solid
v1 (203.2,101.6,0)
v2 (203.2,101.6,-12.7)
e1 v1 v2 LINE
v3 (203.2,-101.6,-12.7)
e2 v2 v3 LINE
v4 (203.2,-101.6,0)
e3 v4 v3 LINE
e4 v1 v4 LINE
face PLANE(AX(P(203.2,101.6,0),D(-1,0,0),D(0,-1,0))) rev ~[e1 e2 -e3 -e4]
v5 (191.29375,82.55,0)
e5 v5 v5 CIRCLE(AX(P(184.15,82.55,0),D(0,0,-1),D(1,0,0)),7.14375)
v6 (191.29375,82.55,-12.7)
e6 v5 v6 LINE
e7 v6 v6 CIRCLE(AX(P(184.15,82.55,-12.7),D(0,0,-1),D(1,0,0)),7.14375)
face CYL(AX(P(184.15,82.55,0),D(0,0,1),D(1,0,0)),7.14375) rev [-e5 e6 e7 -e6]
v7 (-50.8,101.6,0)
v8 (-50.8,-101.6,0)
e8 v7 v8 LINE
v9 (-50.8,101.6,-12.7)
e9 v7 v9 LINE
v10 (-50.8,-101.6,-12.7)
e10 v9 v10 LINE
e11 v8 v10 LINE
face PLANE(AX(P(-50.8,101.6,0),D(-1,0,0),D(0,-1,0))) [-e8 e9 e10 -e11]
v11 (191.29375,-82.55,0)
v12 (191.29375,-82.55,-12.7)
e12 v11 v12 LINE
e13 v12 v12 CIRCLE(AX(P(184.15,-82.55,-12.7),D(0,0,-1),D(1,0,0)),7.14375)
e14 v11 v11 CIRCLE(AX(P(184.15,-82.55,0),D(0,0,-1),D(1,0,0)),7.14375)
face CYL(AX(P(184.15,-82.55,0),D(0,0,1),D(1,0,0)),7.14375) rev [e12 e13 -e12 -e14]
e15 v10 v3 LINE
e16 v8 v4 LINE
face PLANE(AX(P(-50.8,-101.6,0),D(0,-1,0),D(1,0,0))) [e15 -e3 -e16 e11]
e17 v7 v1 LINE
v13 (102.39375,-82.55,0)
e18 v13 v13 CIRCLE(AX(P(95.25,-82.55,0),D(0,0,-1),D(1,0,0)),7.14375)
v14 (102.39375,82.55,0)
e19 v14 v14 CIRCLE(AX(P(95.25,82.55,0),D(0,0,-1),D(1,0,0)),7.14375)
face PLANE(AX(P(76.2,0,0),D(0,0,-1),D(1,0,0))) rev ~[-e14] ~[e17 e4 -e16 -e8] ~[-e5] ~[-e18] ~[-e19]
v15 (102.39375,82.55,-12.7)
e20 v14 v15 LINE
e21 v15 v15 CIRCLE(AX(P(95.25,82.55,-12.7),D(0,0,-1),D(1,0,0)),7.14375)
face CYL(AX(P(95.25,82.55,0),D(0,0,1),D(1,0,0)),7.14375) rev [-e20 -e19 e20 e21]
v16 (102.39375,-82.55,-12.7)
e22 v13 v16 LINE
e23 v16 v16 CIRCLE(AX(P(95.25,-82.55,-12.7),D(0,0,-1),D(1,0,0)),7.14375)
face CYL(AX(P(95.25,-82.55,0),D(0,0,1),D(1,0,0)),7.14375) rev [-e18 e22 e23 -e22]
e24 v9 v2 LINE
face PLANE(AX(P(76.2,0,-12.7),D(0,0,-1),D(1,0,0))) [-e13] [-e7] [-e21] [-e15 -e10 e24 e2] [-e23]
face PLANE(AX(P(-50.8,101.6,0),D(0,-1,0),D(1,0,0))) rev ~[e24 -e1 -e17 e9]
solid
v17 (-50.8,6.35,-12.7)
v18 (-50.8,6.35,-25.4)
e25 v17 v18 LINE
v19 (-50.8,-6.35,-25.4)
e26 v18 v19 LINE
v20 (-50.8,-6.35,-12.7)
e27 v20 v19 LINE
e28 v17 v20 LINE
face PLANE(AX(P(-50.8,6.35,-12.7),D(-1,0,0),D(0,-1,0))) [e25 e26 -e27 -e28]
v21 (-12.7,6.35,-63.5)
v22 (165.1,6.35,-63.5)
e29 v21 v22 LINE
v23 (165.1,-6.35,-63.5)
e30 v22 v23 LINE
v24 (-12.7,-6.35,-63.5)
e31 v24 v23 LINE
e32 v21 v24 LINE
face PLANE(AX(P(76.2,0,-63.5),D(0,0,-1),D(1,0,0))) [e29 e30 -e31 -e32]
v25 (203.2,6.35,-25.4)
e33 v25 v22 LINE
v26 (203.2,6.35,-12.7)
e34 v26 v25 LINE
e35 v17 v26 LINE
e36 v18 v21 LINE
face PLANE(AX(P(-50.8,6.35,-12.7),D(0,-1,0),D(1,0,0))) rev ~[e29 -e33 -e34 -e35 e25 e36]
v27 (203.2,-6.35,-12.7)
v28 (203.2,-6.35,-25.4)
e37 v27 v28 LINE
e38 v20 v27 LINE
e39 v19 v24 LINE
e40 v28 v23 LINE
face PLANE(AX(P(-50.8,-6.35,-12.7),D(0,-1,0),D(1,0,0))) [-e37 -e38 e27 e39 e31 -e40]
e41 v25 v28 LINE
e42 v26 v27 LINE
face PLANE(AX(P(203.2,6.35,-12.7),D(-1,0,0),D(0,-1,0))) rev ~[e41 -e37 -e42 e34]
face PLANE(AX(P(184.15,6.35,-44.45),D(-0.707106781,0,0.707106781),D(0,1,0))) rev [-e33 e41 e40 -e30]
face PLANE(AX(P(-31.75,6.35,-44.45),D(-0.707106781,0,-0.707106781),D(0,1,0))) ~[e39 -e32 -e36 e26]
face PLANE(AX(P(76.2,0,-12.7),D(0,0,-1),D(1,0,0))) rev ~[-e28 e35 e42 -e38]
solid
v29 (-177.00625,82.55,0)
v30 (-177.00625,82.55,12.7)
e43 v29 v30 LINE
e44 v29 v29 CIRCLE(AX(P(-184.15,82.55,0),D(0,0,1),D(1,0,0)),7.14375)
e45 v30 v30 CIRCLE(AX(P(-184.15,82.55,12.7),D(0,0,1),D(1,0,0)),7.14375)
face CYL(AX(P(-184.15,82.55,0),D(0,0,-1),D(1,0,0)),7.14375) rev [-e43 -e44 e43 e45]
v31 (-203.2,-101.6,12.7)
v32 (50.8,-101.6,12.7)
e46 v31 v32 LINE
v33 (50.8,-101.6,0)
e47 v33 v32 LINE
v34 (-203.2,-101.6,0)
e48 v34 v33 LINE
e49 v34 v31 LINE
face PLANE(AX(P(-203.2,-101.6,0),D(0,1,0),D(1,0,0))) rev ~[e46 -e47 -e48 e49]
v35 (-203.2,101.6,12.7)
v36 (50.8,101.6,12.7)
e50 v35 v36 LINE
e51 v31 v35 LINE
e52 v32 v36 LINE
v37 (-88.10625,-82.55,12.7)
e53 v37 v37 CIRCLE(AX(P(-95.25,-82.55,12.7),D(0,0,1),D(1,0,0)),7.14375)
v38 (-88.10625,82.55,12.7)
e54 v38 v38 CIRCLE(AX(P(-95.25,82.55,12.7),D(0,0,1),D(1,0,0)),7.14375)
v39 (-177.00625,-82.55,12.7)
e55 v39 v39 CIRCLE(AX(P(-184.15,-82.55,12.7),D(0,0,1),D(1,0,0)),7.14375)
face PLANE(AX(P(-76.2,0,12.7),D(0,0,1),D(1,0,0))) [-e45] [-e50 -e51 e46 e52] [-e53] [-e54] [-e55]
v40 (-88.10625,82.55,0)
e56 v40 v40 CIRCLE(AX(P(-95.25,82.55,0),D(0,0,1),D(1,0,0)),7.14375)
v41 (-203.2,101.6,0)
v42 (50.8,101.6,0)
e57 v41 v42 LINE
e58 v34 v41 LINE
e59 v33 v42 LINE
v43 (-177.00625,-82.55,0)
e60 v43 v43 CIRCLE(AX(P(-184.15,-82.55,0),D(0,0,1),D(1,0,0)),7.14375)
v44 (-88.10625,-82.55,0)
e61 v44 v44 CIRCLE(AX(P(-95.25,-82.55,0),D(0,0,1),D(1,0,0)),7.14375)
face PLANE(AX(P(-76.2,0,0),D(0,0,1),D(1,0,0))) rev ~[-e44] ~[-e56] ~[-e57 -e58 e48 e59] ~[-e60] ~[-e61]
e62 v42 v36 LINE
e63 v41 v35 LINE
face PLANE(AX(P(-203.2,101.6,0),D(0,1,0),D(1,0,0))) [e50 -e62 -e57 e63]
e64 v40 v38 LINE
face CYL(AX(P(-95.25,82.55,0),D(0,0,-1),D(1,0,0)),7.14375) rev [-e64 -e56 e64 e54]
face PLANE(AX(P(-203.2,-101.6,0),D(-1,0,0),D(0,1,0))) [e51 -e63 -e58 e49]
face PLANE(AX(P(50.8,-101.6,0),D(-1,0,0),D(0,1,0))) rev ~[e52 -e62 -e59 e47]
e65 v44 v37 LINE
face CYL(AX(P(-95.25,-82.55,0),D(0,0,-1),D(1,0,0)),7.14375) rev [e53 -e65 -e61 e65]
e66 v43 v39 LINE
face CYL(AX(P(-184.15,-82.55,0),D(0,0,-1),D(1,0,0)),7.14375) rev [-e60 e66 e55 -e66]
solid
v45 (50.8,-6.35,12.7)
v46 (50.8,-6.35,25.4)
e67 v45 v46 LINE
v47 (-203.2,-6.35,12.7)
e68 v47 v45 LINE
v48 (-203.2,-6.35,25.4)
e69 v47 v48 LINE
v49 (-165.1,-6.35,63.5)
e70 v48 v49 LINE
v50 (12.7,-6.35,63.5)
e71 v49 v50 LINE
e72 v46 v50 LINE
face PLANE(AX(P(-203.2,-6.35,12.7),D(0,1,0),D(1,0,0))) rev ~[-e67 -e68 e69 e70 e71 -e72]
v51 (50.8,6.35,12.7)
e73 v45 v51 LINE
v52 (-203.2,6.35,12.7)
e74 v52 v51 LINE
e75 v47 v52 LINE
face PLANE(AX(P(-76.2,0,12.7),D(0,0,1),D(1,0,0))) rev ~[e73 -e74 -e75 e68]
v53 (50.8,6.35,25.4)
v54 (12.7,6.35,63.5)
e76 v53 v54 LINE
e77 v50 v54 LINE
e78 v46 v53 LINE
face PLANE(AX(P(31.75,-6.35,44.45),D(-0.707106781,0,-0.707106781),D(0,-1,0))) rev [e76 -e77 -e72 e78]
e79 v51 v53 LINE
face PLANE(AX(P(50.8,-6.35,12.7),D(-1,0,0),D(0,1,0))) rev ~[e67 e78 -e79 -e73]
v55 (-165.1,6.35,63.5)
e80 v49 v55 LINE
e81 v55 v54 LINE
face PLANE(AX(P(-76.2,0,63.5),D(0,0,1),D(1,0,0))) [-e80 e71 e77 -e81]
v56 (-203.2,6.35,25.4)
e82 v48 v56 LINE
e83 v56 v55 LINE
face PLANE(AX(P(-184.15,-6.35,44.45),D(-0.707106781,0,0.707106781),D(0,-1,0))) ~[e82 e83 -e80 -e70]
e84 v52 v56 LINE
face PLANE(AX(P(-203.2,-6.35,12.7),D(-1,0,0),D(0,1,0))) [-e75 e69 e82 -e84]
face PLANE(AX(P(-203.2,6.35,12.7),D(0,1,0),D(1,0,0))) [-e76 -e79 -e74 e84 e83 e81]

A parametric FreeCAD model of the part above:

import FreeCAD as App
import Part
import Sketcher
Q = App.Units.Quantity


def edges_at(feature, points):
    """Names of the edges that pass closest to the given points."""
    edges = feature.Shape.Edges
    near = lambda p: min(range(len(edges)), key=lambda i: edges[i].distToShape(Part.Vertex(*p))[0])
    return sorted({f"Edge{near(p) + 1}" for p in points})


def add_polygon(sketch, points):
    """Adds a closed chain of lines whose ends are joined by coincident constraints."""
    first, n = sketch.GeometryCount, len(points)
    for a, b in zip(points, points[1:] + points[:1]):
        sketch.addGeometry(Part.LineSegment(App.Vector(*a, 0), App.Vector(*b, 0)), False)
    for i in range(n):
        sketch.addConstraint(Sketcher.Constraint("Coincident", first + i, 2, first + (i + 1) % n, 1))

doc = App.newDocument("Part")
body = doc.addObject("PartDesign::Body", "Body")

# Sketch on XY plane
sketch1 = doc.addObject("Sketcher::SketchObject", "Sketch")
body.addObject(sketch1)
sketch1.AttachmentSupport = (doc.XY_Plane, [""])
sketch1.MapMode = "FlatFace"
add_polygon(sketch1, [(-203, 102), (-203, -102), (51, -102), (51, 102)])  # lines 0-3
sketch1.addGeometry(Part.Circle(App.Vector(-184, -83, 0), App.Vector(0, 0, 1), 7), False)  # 4
sketch1.addGeometry(Part.Circle(App.Vector(-95, -83, 0), App.Vector(0, 0, 1), 7), False)  # 5
sketch1.addGeometry(Part.Circle(App.Vector(-184, 83, 0), App.Vector(0, 0, 1), 7), False)  # 6
sketch1.addGeometry(Part.Circle(App.Vector(-95, 83, 0), App.Vector(0, 0, 1), 7), False)  # 7
sketch1.addConstraint(Sketcher.Constraint("Vertical", 0))
sketch1.addConstraint(Sketcher.Constraint("Horizontal", 1))
sketch1.addConstraint(Sketcher.Constraint("Vertical", 2))
sketch1.addConstraint(Sketcher.Constraint("Horizontal", 3))
sketch1.addConstraint(Sketcher.Constraint("Equal", 4, 5))
sketch1.addConstraint(Sketcher.Constraint("Equal", 5, 6))
sketch1.addConstraint(Sketcher.Constraint("Equal", 6, 7))
sketch1.addConstraint(Sketcher.Constraint("Symmetric", 4, 3, 6, 3, -1))
sketch1.addConstraint(Sketcher.Constraint("Symmetric", 5, 3, 7, 3, -1))
sketch1.addConstraint(Sketcher.Constraint("Horizontal", 4, 3, 5, 3))
sketch1.addConstraint(Sketcher.Constraint("DistanceX", 1, 1, 1, 2, Q("10 in")))
sketch1.addConstraint(Sketcher.Constraint("DistanceY", 0, 2, 0, 1, Q("8 in")))
sketch1.addConstraint(Sketcher.Constraint("Diameter", 4, Q("0.5625 in")))
sketch1.addConstraint(Sketcher.Constraint("DistanceX", 0, 2, -1, 1, Q("8 in")))
sketch1.addConstraint(Sketcher.Constraint("DistanceY", 0, 2, -1, 1, Q("4 in")))
sketch1.addConstraint(Sketcher.Constraint("DistanceX", 4, 3, 5, 3, Q("3.5 in")))
sketch1.addConstraint(Sketcher.Constraint("DistanceY", 4, 3, 6, 3, Q("6.5 in")))
sketch1.addConstraint(Sketcher.Constraint("DistanceX", 4, 3, -1, 1, Q("7.25 in")))
pad1 = doc.addObject("PartDesign::Pad", "Pad")
body.addObject(pad1)
pad1.Profile = sketch1
pad1.Length = Q("0.5 in")
body2 = doc.addObject("PartDesign::Body", "Body001")

# Sketch on XY plane
sketch2 = doc.addObject("Sketcher::SketchObject", "Sketch001")
body2.addObject(sketch2)
sketch2.AttachmentSupport = (doc.getObject("XY_Plane001"), [""])
sketch2.MapMode = "FlatFace"
add_polygon(sketch2, [(-51, -102), (-51, 102), (203, 102), (203, -102)])  # lines 0-3
sketch2.addGeometry(Part.Circle(App.Vector(95, 83, 0), App.Vector(0, 0, 1), 7), False)  # 4
sketch2.addGeometry(Part.Circle(App.Vector(184, 83, 0), App.Vector(0, 0, 1), 7), False)  # 5
sketch2.addGeometry(Part.Circle(App.Vector(95, -83, 0), App.Vector(0, 0, 1), 7), False)  # 6
sketch2.addGeometry(Part.Circle(App.Vector(184, -83, 0), App.Vector(0, 0, 1), 7), False)  # 7
sketch2.addConstraint(Sketcher.Constraint("Vertical", 0))
sketch2.addConstraint(Sketcher.Constraint("Horizontal", 1))
sketch2.addConstraint(Sketcher.Constraint("Vertical", 2))
sketch2.addConstraint(Sketcher.Constraint("Horizontal", 3))
sketch2.addConstraint(Sketcher.Constraint("Equal", 4, 5))
sketch2.addConstraint(Sketcher.Constraint("Equal", 5, 6))
sketch2.addConstraint(Sketcher.Constraint("Equal", 6, 7))
sketch2.addConstraint(Sketcher.Constraint("Symmetric", 4, 3, 6, 3, -1))
sketch2.addConstraint(Sketcher.Constraint("Symmetric", 5, 3, 7, 3, -1))
sketch2.addConstraint(Sketcher.Constraint("Horizontal", 4, 3, 5, 3))
sketch2.addConstraint(Sketcher.Constraint("DistanceX", 1, 1, 1, 2, Q("10 in")))
sketch2.addConstraint(Sketcher.Constraint("DistanceY", 0, 1, 0, 2, Q("8 in")))
sketch2.addConstraint(Sketcher.Constraint("Diameter", 4, Q("0.5625 in")))
sketch2.addConstraint(Sketcher.Constraint("DistanceX", 0, 2, -1, 1, Q("2 in")))
sketch2.addConstraint(Sketcher.Constraint("DistanceY", -1, 1, 0, 2, Q("4 in")))
sketch2.addConstraint(Sketcher.Constraint("DistanceX", 4, 3, 5, 3, Q("3.5 in")))
sketch2.addConstraint(Sketcher.Constraint("DistanceY", 6, 3, 4, 3, Q("6.5 in")))
sketch2.addConstraint(Sketcher.Constraint("DistanceX", -1, 1, 4, 3, Q("3.75 in")))
pad2 = doc.addObject("PartDesign::Pad", "Pad001")
body2.addObject(pad2)
pad2.Profile = sketch2
pad2.Length = Q("0.5 in")
pad2.Reversed = True
body3 = doc.addObject("PartDesign::Body", "Body002")

# Sketch on XY plane
sketch3 = doc.addObject("Sketcher::SketchObject", "Sketch002")
body3.addObject(sketch3)
sketch3.AttachmentSupport = (doc.getObject("XY_Plane002"), [""])
sketch3.MapMode = "FlatFace"
sketch3.AttachmentOffset = App.Placement(App.Vector(0, 0, 0.5 * 25.4), App.Rotation())
add_polygon(sketch3, [(-203, 6), (-203, -6), (51, -6), (51, 6)])  # lines 0-3
sketch3.addConstraint(Sketcher.Constraint("Vertical", 0))
sketch3.addConstraint(Sketcher.Constraint("Horizontal", 1))
sketch3.addConstraint(Sketcher.Constraint("Vertical", 2))
sketch3.addConstraint(Sketcher.Constraint("Horizontal", 3))
sketch3.addConstraint(Sketcher.Constraint("DistanceX", 1, 1, 1, 2, Q("10 in")))
sketch3.addConstraint(Sketcher.Constraint("DistanceY", 0, 2, 0, 1, Q("0.5 in")))
sketch3.addConstraint(Sketcher.Constraint("DistanceX", 0, 2, -1, 1, Q("8 in")))
sketch3.addConstraint(Sketcher.Constraint("DistanceY", 0, 2, -1, 1, Q("0.25 in")))
pad3 = doc.addObject("PartDesign::Pad", "Pad002")
body3.addObject(pad3)
pad3.Profile = sketch3
pad3.Length = Q("2 in")
doc.recompute()

chamfer = doc.addObject("PartDesign::Chamfer", "Chamfer")
body3.addObject(chamfer)
chamfer.Base = (pad3, edges_at(pad3, [(-203.2, 0, 63.5), (50.8, 0, 63.5)]))
chamfer.Size = Q("1.5 in")
body4 = doc.addObject("PartDesign::Body", "Body003")

# Sketch on XY plane
sketch4 = doc.addObject("Sketcher::SketchObject", "Sketch003")
body4.addObject(sketch4)
sketch4.AttachmentSupport = (doc.getObject("XY_Plane003"), [""])
sketch4.MapMode = "FlatFace"
sketch4.AttachmentOffset = App.Placement(App.Vector(0, 0, -0.5 * 25.4), App.Rotation())
add_polygon(sketch4, [(-51, -6), (-51, 6), (203, 6), (203, -6)])  # lines 0-3
sketch4.addConstraint(Sketcher.Constraint("Vertical", 0))
sketch4.addConstraint(Sketcher.Constraint("Horizontal", 1))
sketch4.addConstraint(Sketcher.Constraint("Vertical", 2))
sketch4.addConstraint(Sketcher.Constraint("Horizontal", 3))
sketch4.addConstraint(Sketcher.Constraint("DistanceX", 1, 1, 1, 2, Q("10 in")))
sketch4.addConstraint(Sketcher.Constraint("DistanceY", 0, 1, 0, 2, Q("0.5 in")))
sketch4.addConstraint(Sketcher.Constraint("DistanceX", 0, 2, -1, 1, Q("2 in")))
sketch4.addConstraint(Sketcher.Constraint("DistanceY", -1, 1, 0, 2, Q("0.25 in")))
pad4 = doc.addObject("PartDesign::Pad", "Pad003")
body4.addObject(pad4)
pad4.Profile = sketch4
pad4.Length = Q("2 in")
pad4.Reversed = True
doc.recompute()

chamfer2 = doc.addObject("PartDesign::Chamfer", "Chamfer001")
body4.addObject(chamfer2)
chamfer2.Base = (pad4, edges_at(pad4, [(203.2, 0, -63.5), (-50.8, 0, -63.5)]))
chamfer2.Size = Q("1.5 in")

doc.recompute()
